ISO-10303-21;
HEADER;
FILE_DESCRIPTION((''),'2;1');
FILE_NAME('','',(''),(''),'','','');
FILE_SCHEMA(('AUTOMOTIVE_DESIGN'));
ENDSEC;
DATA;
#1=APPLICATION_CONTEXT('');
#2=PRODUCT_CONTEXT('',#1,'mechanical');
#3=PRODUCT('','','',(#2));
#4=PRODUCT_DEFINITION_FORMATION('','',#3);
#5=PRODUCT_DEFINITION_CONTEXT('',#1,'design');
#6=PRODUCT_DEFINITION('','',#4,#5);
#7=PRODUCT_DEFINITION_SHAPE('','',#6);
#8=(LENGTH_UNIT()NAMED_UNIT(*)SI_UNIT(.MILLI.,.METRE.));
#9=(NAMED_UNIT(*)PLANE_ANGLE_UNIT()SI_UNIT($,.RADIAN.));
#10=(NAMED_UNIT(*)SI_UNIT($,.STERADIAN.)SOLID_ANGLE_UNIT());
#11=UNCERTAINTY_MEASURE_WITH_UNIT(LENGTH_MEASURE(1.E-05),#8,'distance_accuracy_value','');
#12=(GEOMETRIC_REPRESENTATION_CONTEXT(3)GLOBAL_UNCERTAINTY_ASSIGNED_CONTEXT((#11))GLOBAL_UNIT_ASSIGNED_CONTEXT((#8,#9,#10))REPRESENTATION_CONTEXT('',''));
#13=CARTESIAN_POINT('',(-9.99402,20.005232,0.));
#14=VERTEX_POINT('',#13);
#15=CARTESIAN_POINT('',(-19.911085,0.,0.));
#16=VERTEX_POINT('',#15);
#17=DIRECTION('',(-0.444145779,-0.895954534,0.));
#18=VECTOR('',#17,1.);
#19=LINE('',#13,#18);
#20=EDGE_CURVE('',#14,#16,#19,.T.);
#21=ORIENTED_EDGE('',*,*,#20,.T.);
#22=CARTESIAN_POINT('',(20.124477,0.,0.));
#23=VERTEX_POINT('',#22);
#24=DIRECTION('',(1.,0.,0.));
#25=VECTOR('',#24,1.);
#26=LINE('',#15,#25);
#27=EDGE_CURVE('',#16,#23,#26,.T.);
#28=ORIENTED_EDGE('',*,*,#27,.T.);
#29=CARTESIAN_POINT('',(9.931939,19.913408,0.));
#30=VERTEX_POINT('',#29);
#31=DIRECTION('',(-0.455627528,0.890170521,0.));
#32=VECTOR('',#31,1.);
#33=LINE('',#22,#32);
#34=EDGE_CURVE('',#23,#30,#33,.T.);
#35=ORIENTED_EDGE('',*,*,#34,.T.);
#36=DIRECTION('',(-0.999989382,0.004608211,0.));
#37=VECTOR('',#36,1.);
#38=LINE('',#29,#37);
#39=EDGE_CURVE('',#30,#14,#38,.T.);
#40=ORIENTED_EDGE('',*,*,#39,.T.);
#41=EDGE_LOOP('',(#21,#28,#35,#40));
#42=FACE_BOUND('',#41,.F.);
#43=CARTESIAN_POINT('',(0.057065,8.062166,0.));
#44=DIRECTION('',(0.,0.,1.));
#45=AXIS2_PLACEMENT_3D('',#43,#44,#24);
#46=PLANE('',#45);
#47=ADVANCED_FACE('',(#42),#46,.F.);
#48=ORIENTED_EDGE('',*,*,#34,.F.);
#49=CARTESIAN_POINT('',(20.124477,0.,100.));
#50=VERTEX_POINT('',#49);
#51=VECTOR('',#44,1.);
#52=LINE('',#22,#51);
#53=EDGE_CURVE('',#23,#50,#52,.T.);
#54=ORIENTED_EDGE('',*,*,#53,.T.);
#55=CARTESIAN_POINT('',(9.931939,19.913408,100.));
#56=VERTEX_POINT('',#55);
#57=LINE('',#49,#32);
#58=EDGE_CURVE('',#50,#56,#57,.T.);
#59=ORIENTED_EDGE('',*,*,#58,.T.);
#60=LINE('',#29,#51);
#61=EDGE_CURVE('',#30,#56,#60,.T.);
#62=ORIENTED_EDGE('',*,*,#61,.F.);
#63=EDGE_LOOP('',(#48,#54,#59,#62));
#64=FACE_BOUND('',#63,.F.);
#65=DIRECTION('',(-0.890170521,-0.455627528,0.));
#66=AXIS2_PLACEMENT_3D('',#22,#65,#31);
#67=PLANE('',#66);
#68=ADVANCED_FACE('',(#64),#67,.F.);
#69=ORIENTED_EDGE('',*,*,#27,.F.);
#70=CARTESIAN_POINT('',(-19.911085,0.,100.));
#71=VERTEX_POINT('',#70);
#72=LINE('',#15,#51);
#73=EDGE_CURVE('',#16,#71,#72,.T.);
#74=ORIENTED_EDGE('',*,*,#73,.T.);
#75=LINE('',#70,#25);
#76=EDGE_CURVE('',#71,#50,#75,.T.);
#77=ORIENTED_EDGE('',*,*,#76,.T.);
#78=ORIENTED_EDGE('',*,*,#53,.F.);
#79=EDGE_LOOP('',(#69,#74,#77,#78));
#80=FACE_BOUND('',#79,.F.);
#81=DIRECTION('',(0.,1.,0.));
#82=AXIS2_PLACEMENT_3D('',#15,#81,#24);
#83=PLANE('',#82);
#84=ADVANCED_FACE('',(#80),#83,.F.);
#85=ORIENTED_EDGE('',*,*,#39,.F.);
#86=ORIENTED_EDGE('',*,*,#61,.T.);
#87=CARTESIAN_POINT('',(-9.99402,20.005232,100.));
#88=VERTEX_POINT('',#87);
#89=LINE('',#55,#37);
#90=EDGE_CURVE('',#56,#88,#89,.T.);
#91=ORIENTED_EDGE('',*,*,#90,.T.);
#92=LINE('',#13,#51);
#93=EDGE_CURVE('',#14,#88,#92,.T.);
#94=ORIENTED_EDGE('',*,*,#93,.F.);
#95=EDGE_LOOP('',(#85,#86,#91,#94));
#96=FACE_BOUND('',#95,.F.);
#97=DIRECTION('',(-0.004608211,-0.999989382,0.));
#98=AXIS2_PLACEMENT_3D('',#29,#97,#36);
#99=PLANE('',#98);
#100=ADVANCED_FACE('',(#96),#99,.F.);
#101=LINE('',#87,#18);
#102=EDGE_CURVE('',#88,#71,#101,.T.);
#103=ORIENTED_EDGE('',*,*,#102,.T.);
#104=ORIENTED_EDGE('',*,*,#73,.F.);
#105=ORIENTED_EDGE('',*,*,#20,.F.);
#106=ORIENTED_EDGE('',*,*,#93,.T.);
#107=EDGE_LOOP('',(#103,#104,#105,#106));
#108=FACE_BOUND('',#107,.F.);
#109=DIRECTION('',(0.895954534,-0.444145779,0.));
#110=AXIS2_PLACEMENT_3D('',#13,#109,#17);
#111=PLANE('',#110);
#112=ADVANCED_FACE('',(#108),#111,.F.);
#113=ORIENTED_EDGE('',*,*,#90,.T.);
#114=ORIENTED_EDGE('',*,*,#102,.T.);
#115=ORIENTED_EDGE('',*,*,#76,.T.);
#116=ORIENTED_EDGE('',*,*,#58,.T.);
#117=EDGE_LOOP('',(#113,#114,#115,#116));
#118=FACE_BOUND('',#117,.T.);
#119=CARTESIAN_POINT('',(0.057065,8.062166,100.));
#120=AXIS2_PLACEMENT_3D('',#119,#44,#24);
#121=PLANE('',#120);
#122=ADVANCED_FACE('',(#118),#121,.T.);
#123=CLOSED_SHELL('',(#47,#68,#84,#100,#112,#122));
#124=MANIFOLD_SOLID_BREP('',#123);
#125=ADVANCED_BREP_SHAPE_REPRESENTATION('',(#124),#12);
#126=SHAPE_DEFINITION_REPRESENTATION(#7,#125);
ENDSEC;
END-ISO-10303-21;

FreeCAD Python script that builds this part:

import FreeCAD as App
import Part
import Sketcher

V = App.Vector


def add_polygon(sketch, points):
    """Adds a closed chain of lines whose ends are joined by coincident constraints."""
    first, n = sketch.GeometryCount, len(points)
    for a, b in zip(points, points[1:] + points[:1]):
        sketch.addGeometry(Part.LineSegment(App.Vector(*a, 0), App.Vector(*b, 0)), False)
    for i in range(n):
        sketch.addConstraint(Sketcher.Constraint("Coincident", first + i, 2, first + (i + 1) % n, 1))

doc = App.newDocument("Part")
params = doc.addObject("Spreadsheet::Sheet", "Params")
for row, (alias, value) in enumerate([
    ("pad1_length", "100 mm"),
], start=1):
    params.set(f"A{row}", alias)
    params.set(f"B{row}", "=" + value)
    params.setAlias(f"B{row}", alias)

body = doc.addObject("PartDesign::Body", "Body")

# Sketch on XY plane
sketch1 = doc.addObject("Sketcher::SketchObject", "Sketch")
body.addObject(sketch1)
sketch1.AttachmentSupport = (doc.XY_Plane, [""])
sketch1.MapMode = "FlatFace"
add_polygon(sketch1, [(-19.911085, 0), (20.124477, 0), (9.931939, 19.913408), (-9.99402, 20.005232)])  # lines 0-3
sketch1.addConstraint([
    Sketcher.Constraint("Horizontal", 0),
    Sketcher.Constraint("PointOnObject", 0, 2, -1),
    Sketcher.Constraint("Distance", 3, 22.328401),
    Sketcher.Constraint("Distance", 1, 22.37033),
    Sketcher.Constraint("Distance", 2, 19.926171),
    Sketcher.Constraint("DistanceX", 0, 1, 0, 2, 40.035562),
    Sketcher.Constraint("DistanceX", -1, 1, 1, 2, 9.931939),
    Sketcher.Constraint("DistanceY", -1, 1, 1, 2, 19.913408),
])
pad1 = doc.addObject("PartDesign::Pad", "Pad")
body.addObject(pad1)
pad1.Profile = sketch1
pad1.setExpression("Length", "Params.pad1_length")

doc.recompute()
